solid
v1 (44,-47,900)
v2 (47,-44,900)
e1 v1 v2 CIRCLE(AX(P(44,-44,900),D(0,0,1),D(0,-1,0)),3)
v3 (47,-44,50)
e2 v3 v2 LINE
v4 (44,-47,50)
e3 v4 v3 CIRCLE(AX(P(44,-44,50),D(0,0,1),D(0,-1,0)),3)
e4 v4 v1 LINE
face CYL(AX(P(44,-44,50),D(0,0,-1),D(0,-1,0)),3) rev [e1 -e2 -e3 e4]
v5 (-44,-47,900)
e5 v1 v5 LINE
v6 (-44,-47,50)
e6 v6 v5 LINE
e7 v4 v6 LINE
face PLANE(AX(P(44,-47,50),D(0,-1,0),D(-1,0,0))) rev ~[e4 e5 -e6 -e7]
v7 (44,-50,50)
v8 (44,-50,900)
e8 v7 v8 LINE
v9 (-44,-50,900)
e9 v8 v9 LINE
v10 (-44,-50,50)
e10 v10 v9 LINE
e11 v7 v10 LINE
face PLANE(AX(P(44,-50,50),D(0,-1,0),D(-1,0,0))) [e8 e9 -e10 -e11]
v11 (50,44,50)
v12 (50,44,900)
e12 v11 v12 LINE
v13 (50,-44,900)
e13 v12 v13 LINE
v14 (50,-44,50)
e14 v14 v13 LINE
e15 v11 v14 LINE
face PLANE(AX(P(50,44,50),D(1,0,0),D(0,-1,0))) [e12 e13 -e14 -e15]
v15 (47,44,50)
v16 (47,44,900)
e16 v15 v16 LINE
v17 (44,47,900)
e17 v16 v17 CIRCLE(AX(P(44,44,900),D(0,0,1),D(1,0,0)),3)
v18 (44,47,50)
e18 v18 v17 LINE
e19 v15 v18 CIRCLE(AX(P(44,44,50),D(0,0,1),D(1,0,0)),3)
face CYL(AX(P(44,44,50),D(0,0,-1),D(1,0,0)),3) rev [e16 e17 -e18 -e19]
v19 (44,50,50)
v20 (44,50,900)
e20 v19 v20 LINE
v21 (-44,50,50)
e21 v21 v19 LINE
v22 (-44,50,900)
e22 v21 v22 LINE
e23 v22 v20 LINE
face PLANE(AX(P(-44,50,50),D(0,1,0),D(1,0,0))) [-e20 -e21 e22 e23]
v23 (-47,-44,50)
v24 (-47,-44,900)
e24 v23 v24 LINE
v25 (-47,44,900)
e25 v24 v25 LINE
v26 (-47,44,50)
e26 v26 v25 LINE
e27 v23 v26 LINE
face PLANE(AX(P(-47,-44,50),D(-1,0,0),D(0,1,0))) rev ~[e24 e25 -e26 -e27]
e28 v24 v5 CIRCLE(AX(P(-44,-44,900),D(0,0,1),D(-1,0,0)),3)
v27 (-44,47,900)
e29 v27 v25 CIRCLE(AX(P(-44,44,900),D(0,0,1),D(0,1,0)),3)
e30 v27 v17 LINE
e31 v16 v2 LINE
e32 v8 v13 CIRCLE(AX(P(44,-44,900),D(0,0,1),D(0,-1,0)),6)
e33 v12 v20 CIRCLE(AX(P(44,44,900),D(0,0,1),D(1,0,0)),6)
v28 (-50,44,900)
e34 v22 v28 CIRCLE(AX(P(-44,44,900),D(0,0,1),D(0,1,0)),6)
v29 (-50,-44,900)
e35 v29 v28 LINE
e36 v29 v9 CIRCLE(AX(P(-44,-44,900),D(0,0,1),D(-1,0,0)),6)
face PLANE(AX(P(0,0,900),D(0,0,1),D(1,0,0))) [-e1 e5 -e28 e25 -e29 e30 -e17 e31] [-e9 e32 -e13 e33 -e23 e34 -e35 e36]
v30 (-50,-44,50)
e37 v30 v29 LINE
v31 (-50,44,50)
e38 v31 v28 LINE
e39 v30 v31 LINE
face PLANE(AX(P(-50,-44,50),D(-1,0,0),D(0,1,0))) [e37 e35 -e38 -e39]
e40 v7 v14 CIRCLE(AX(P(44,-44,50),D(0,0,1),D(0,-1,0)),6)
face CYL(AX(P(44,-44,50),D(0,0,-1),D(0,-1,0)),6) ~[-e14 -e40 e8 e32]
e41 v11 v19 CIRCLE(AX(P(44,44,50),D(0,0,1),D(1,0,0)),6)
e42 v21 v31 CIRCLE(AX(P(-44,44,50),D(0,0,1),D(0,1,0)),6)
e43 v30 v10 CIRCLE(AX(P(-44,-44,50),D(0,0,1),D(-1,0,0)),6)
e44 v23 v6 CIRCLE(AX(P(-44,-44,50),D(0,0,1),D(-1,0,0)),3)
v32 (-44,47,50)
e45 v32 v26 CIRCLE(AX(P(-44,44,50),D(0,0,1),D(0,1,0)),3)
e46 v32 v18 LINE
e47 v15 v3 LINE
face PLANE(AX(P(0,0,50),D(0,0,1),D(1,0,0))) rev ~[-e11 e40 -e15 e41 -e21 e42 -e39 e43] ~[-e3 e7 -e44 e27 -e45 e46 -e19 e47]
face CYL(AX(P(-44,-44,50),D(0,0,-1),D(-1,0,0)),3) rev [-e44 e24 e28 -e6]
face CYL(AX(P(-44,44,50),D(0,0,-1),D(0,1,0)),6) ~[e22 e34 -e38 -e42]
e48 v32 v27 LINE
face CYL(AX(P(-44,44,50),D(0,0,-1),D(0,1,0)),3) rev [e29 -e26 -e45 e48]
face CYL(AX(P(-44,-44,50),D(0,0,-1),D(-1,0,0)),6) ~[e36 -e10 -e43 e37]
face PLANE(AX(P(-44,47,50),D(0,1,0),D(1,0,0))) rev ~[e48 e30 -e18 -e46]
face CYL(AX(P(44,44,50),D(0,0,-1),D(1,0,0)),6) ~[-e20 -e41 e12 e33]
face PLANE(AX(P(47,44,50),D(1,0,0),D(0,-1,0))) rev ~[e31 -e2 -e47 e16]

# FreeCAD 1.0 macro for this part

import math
import FreeCAD as App
import Part
import Sketcher
Q = App.Units.Quantity

doc = App.newDocument("Part")
body = doc.addObject("PartDesign::Body", "Body")

sketch1 = body.newObject("Sketcher::SketchObject", "Sketch")
sketch1.AttachmentSupport = (doc.getObject("XY_Plane"), [""])
sketch1.MapMode = "FlatFace"
sketch1.AttachmentOffset = App.Placement(App.Vector(0, 0, 50), App.Rotation())
sketch1.addGeometry([
    Part.LineSegment(App.Vector(-50, 44, 0), App.Vector(-50, -44, 0)),
    Part.ArcOfCircle(Part.Circle(App.Vector(-44, -44, 0), App.Vector(0, 0, 1), 6), math.radians(180), math.radians(270)),
    Part.LineSegment(App.Vector(-44, -50, 0), App.Vector(44, -50, 0)),
    Part.ArcOfCircle(Part.Circle(App.Vector(44, -44, 0), App.Vector(0, 0, 1), 6), math.radians(-90), math.radians(0)),
    Part.LineSegment(App.Vector(50, -44, 0), App.Vector(50, 44, 0)),
    Part.ArcOfCircle(Part.Circle(App.Vector(44, 44, 0), App.Vector(0, 0, 1), 6), math.radians(0), math.radians(90)),
    Part.LineSegment(App.Vector(44, 50, 0), App.Vector(-44, 50, 0)),
    Part.ArcOfCircle(Part.Circle(App.Vector(-44, 44, 0), App.Vector(0, 0, 1), 6), math.radians(90), math.radians(180)),
    Part.ArcOfCircle(Part.Circle(App.Vector(-44, 44, 0), App.Vector(0, 0, 1), 3), math.radians(90), math.radians(180)),
    Part.LineSegment(App.Vector(-44, 47, 0), App.Vector(44, 47, 0)),
    Part.ArcOfCircle(Part.Circle(App.Vector(44, 44, 0), App.Vector(0, 0, 1), 3), math.radians(0), math.radians(90)),
    Part.LineSegment(App.Vector(47, 44, 0), App.Vector(47, -44, 0)),
    Part.ArcOfCircle(Part.Circle(App.Vector(44, -44, 0), App.Vector(0, 0, 1), 3), math.radians(-90), math.radians(0)),
    Part.LineSegment(App.Vector(44, -47, 0), App.Vector(-44, -47, 0)),
    Part.ArcOfCircle(Part.Circle(App.Vector(-44, -44, 0), App.Vector(0, 0, 1), 3), math.radians(180), math.radians(270)),
    Part.LineSegment(App.Vector(-47, -44, 0), App.Vector(-47, 44, 0)),
], False)
sketch1.addConstraint([
    Sketcher.Constraint("Tangent", 0, 2, 1, 1),
    Sketcher.Constraint("Tangent", 1, 2, 2, 1),
    Sketcher.Constraint("Tangent", 2, 2, 3, 1),
    Sketcher.Constraint("Tangent", 3, 2, 4, 1),
    Sketcher.Constraint("Tangent", 4, 2, 5, 1),
    Sketcher.Constraint("Tangent", 5, 2, 6, 1),
    Sketcher.Constraint("Tangent", 6, 2, 7, 1),
    Sketcher.Constraint("Tangent", 7, 2, 0, 1),
    Sketcher.Constraint("Tangent", 8, 1, 9, 1),
    Sketcher.Constraint("Tangent", 9, 2, 10, 2),
    Sketcher.Constraint("Tangent", 10, 1, 11, 1),
    Sketcher.Constraint("Tangent", 11, 2, 12, 2),
    Sketcher.Constraint("Tangent", 12, 1, 13, 1),
    Sketcher.Constraint("Tangent", 13, 2, 14, 2),
    Sketcher.Constraint("Tangent", 14, 1, 15, 1),
    Sketcher.Constraint("Tangent", 15, 2, 8, 2),
    Sketcher.Constraint("Vertical", 0),
    Sketcher.Constraint("Horizontal", 2),
    Sketcher.Constraint("Vertical", 4),
    Sketcher.Constraint("Horizontal", 6),
    Sketcher.Constraint("Horizontal", 9),
    Sketcher.Constraint("Vertical", 11),
    Sketcher.Constraint("Horizontal", 13),
    Sketcher.Constraint("Vertical", 15),
    Sketcher.Constraint("Coincident", 8, 3, 7, 3),
    Sketcher.Constraint("Coincident", 10, 3, 5, 3),
    Sketcher.Constraint("Coincident", 12, 3, 3, 3),
    Sketcher.Constraint("Equal", 1, 3),
    Sketcher.Constraint("Equal", 3, 5),
    Sketcher.Constraint("Equal", 5, 7),
    Sketcher.Constraint("Equal", 12, 14),
    Sketcher.Constraint("Symmetric", 1, 3, 5, 3, -1, 1),
    Sketcher.Constraint("Equal", 13, 0),
    Sketcher.Constraint("Radius", 1, Q("6 mm")),
    Sketcher.Constraint("Radius", 8, Q("3 mm")),
    Sketcher.Constraint("DistanceX", 0, 2, -1, 1, Q("50 mm")),
])
pad1 = body.newObject("PartDesign::Pad", "Pad")
pad1.Profile = sketch1
pad1.Length = 850

doc.recompute()
